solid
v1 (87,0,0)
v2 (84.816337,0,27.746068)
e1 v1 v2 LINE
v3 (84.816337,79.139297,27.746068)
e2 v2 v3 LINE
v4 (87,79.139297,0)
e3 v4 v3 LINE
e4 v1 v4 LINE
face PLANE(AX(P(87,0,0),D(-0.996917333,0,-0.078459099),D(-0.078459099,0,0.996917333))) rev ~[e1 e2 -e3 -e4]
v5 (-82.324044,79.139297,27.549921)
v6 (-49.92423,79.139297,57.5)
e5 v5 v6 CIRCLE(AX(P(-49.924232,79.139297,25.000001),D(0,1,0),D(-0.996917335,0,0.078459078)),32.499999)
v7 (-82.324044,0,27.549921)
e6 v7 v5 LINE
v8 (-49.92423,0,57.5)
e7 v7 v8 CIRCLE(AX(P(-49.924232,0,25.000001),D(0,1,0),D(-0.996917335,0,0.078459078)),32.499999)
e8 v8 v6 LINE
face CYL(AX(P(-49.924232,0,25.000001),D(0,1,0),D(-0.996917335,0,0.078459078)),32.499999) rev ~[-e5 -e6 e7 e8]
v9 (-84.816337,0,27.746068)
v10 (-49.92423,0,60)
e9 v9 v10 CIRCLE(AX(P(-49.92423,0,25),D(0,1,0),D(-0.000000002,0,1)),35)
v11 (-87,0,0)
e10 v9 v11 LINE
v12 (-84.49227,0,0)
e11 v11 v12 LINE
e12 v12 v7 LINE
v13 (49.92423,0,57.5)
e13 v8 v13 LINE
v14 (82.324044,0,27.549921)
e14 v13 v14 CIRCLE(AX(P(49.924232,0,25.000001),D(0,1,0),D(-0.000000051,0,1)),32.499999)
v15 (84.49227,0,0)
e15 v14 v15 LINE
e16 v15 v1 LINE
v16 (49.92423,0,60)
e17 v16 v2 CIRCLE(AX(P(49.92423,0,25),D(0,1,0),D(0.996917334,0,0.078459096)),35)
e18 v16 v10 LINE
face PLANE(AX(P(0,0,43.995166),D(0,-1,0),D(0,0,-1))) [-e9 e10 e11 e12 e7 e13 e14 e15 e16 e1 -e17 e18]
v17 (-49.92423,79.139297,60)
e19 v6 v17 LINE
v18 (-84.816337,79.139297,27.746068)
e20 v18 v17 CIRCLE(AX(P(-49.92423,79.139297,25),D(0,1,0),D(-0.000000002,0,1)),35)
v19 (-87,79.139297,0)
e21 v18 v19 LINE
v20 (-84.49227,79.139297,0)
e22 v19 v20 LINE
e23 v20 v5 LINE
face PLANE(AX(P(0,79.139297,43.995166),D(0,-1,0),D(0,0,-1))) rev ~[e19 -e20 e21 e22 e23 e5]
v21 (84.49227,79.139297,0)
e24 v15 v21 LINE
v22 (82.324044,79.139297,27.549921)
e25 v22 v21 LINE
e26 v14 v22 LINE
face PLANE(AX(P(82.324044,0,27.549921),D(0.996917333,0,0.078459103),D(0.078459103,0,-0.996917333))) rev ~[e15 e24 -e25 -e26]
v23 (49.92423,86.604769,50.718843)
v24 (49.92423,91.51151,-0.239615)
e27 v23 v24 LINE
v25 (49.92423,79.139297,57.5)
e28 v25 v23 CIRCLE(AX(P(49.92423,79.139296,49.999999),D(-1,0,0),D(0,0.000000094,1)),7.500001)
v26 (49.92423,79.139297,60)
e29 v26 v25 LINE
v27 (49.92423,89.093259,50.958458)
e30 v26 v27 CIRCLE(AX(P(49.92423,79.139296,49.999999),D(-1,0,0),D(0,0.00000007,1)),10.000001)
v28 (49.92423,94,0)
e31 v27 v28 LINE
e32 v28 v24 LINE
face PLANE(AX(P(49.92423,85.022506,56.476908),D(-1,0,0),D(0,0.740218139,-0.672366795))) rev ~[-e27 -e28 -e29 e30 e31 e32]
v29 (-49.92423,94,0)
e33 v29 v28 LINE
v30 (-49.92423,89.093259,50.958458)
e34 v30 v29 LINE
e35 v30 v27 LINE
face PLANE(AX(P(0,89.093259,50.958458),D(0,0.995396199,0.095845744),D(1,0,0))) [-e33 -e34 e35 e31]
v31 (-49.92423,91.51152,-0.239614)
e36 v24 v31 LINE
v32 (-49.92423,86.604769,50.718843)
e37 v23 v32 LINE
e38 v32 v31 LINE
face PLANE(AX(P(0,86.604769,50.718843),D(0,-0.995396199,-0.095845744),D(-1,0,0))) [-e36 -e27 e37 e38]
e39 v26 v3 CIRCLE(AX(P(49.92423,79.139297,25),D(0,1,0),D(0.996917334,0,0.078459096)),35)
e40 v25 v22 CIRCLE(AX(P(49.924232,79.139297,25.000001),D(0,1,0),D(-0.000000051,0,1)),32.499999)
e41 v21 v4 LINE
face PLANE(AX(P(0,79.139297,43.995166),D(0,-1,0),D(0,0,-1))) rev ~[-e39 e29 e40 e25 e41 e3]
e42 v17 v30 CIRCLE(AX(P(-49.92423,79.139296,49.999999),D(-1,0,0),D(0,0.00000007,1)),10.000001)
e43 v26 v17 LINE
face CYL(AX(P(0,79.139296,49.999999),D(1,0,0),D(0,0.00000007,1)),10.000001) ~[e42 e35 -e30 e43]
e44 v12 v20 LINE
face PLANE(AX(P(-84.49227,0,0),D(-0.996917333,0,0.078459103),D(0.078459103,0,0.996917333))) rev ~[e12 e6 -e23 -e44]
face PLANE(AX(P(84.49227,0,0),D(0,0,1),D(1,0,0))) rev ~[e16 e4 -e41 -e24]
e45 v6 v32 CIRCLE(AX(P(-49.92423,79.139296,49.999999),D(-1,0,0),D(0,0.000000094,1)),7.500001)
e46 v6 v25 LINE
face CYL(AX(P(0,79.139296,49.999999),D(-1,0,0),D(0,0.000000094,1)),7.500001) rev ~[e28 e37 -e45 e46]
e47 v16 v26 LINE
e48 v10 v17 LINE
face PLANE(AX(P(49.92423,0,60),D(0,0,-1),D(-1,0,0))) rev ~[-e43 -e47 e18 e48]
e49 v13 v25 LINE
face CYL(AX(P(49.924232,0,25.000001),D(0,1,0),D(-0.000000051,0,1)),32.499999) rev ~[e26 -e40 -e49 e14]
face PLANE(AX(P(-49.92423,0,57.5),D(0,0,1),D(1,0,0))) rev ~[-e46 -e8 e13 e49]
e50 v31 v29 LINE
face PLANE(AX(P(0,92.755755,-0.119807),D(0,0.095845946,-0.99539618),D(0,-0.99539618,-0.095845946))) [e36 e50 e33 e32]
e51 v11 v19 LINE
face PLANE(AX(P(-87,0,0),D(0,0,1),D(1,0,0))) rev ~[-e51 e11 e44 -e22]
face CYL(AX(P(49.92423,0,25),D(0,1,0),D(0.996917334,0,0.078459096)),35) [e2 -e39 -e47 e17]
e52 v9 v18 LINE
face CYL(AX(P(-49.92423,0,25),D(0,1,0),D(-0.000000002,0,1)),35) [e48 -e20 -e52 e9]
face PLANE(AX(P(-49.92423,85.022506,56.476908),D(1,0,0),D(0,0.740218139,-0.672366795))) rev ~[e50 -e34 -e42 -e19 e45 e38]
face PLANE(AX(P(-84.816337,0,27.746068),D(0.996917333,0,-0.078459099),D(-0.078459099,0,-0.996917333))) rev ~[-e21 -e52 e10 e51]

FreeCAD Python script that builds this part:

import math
import FreeCAD as App
import Part
import Sketcher
Q = App.Units.Quantity

doc = App.newDocument("Part")
body = doc.addObject("PartDesign::Body", "Body")

sketch1 = doc.addObject("Sketcher::SketchObject", "Sketch")
body.addObject(sketch1)
sketch1.AttachmentSupport = (doc.XZ_Plane, [""])
sketch1.MapMode = "FlatFace"
sketch1.addGeometry([
    Part.LineSegment(App.Vector(-84.8, 27.7, 0), App.Vector(-87, 0, 0)),
    Part.LineSegment(App.Vector(-87, 0, 0), App.Vector(-84.5, 0, 0)),
    Part.LineSegment(App.Vector(-84.5, 0, 0), App.Vector(-82.3, 27.5, 0)),
    Part.ArcOfCircle(Part.Circle(App.Vector(-49.9, 25, 0), App.Vector(0, 0, 1), 32.5), math.radians(90), math.radians(176)),
    Part.LineSegment(App.Vector(-49.9, 57.5, 0), App.Vector(49.9, 57.5, 0)),
    Part.ArcOfCircle(Part.Circle(App.Vector(49.9, 25, 0), App.Vector(0, 0, 1), 32.5), math.radians(4), math.radians(90)),
    Part.LineSegment(App.Vector(82.3, 27.5, 0), App.Vector(84.5, 0, 0)),
    Part.LineSegment(App.Vector(84.5, 0, 0), App.Vector(87, 0, 0)),
    Part.LineSegment(App.Vector(87, 0, 0), App.Vector(84.8, 27.7, 0)),
    Part.ArcOfCircle(Part.Circle(App.Vector(49.9, 25, 0), App.Vector(0, 0, 1), 35), math.radians(4), math.radians(90)),
    Part.LineSegment(App.Vector(49.9, 60, 0), App.Vector(-49.9, 60, 0)),
    Part.ArcOfCircle(Part.Circle(App.Vector(-49.9, 25, 0), App.Vector(0, 0, 1), 35), math.radians(90), math.radians(176)),
], False)
sketch1.addConstraint([
    Sketcher.Constraint("Coincident", 0, 2, 1, 1),
    Sketcher.Constraint("Coincident", 1, 2, 2, 1),
    Sketcher.Constraint("Tangent", 2, 2, 3, 2),
    Sketcher.Constraint("Tangent", 3, 1, 4, 1),
    Sketcher.Constraint("Tangent", 4, 2, 5, 2),
    Sketcher.Constraint("Tangent", 5, 1, 6, 1),
    Sketcher.Constraint("Coincident", 6, 2, 7, 1),
    Sketcher.Constraint("Coincident", 7, 2, 8, 1),
    Sketcher.Constraint("Tangent", 8, 2, 9, 1),
    Sketcher.Constraint("Tangent", 9, 2, 10, 1),
    Sketcher.Constraint("Tangent", 10, 2, 11, 1),
    Sketcher.Constraint("Tangent", 11, 2, 0, 1),
    Sketcher.Constraint("Horizontal", 1),
    Sketcher.Constraint("Horizontal", 4),
    Sketcher.Constraint("Horizontal", 7),
    Sketcher.Constraint("Horizontal", 10),
    Sketcher.Constraint("Coincident", 9, 3, 5, 3),
    Sketcher.Constraint("Coincident", 11, 3, 3, 3),
    Sketcher.Constraint("Equal", 3, 5),
    Sketcher.Constraint("Symmetric", 1, 2, 6, 2, -1, 1),
    Sketcher.Constraint("Symmetric", 0, 2, 7, 2, -2),
    Sketcher.Constraint("Parallel", 0, 2),
    Sketcher.Constraint("Horizontal", 2, 2, 5, 1),
    Sketcher.Constraint("Radius", 9, 35.0),
    Sketcher.Constraint("Radius", 3, 32.499999),
    Sketcher.Constraint("DistanceY", -1, 1, 3, 3, 25.000001),
    Sketcher.Constraint("DistanceX", 0, 2, -1, 1, 87.0),
    Sketcher.Constraint("Angle", 0, Q("-94.5 deg")),
])

sketch2 = doc.addObject("Sketcher::SketchObject", "Sketch001")
body.addObject(sketch2)
sketch2.AttachmentSupport = (doc.XY_Plane, [""])
sketch2.MapMode = "FlatFace"
sketch2.AttachmentOffset = App.Placement(App.Vector(0, 0, 60), App.Rotation())
sketch2.addGeometry(Part.LineSegment(App.Vector(0, 0, 0), App.Vector(0, 79, 0)), False)
sketch2.addConstraint([
    Sketcher.Constraint("Vertical", 0),
    Sketcher.Constraint("Coincident", 0, 1, -1, 1),
    Sketcher.Constraint("DistanceY", 0, 1, 0, 2, 79.139297),
])
doc.recompute()

additivepipe = doc.addObject("PartDesign::AdditivePipe", "AdditivePipe")
body.addObject(additivepipe)
additivepipe.Profile = sketch1
additivepipe.Spine = (sketch2, ["Edge1"])

sketch3 = doc.addObject("Sketcher::SketchObject", "Sketch002")
body.addObject(sketch3)
sketch3.AttachmentSupport = (doc.XZ_Plane, [""])
sketch3.MapMode = "FlatFace"
sketch3.AttachmentOffset = App.Placement(App.Vector(0, 0, -79.139297), App.Rotation())
sketch3.addGeometry([
    Part.LineSegment(App.Vector(49.9, 60, 0), App.Vector(49.9, 57.5, 0)),
    Part.LineSegment(App.Vector(49.9, 57.5, 0), App.Vector(-49.9, 57.5, 0)),
    Part.LineSegment(App.Vector(-49.9, 57.5, 0), App.Vector(-49.9, 60, 0)),
    Part.LineSegment(App.Vector(-49.9, 60, 0), App.Vector(49.9, 60, 0)),
], False)
sketch3.addConstraint([
    Sketcher.Constraint("Coincident", 0, 2, 1, 1),
    Sketcher.Constraint("Coincident", 1, 2, 2, 1),
    Sketcher.Constraint("Coincident", 2, 2, 3, 1),
    Sketcher.Constraint("Coincident", 3, 2, 0, 1),
    Sketcher.Constraint("Vertical", 0),
    Sketcher.Constraint("Horizontal", 1),
    Sketcher.Constraint("Vertical", 2),
    Sketcher.Constraint("Horizontal", 3),
    Sketcher.Constraint("DistanceY", 0, 2, 0, 1, 2.5),
    Sketcher.Constraint("DistanceY", -1, 1, 2, 2, 60.0),
    Sketcher.Constraint("DistanceX", 1, 2, 1, 1, 99.84846),
    Sketcher.Constraint("DistanceX", -1, 1, 0, 2, 49.92423),
])

sketch4 = doc.addObject("Sketcher::SketchObject", "Sketch003")
body.addObject(sketch4)
sketch4.AttachmentSupport = (doc.YZ_Plane, [""])
sketch4.MapMode = "FlatFace"
sketch4.addGeometry([
    Part.ArcOfCircle(Part.Circle(App.Vector(79, 50, 0), App.Vector(0, 0, 1), 10), math.radians(6), math.radians(90)),
    Part.LineSegment(App.Vector(89, 51, 0), App.Vector(94, 0, 0)),
], False)
sketch4.addConstraint([
    Sketcher.Constraint("Tangent", 0, 1, 1, 1),
    Sketcher.Constraint("PointOnObject", 1, 2, -1),
    Sketcher.Constraint("Radius", 0, 10.000001),
    Sketcher.Constraint("DistanceY", -1, 1, 0, 3, 49.999999),
    Sketcher.Constraint("DistanceX", -1, 1, 1, 2, 94.0),
    Sketcher.Constraint("Angle", 1, Q("-84.5 deg")),
    Sketcher.Constraint("DistanceX", 0, 2, 0, 1, 9.953962),
])
doc.recompute()

additivepipe2 = doc.addObject("PartDesign::AdditivePipe", "AdditivePipe001")
body.addObject(additivepipe2)
additivepipe2.Profile = sketch3
additivepipe2.Spine = (sketch4, ["Edge1", "Edge2"])

doc.recompute()
